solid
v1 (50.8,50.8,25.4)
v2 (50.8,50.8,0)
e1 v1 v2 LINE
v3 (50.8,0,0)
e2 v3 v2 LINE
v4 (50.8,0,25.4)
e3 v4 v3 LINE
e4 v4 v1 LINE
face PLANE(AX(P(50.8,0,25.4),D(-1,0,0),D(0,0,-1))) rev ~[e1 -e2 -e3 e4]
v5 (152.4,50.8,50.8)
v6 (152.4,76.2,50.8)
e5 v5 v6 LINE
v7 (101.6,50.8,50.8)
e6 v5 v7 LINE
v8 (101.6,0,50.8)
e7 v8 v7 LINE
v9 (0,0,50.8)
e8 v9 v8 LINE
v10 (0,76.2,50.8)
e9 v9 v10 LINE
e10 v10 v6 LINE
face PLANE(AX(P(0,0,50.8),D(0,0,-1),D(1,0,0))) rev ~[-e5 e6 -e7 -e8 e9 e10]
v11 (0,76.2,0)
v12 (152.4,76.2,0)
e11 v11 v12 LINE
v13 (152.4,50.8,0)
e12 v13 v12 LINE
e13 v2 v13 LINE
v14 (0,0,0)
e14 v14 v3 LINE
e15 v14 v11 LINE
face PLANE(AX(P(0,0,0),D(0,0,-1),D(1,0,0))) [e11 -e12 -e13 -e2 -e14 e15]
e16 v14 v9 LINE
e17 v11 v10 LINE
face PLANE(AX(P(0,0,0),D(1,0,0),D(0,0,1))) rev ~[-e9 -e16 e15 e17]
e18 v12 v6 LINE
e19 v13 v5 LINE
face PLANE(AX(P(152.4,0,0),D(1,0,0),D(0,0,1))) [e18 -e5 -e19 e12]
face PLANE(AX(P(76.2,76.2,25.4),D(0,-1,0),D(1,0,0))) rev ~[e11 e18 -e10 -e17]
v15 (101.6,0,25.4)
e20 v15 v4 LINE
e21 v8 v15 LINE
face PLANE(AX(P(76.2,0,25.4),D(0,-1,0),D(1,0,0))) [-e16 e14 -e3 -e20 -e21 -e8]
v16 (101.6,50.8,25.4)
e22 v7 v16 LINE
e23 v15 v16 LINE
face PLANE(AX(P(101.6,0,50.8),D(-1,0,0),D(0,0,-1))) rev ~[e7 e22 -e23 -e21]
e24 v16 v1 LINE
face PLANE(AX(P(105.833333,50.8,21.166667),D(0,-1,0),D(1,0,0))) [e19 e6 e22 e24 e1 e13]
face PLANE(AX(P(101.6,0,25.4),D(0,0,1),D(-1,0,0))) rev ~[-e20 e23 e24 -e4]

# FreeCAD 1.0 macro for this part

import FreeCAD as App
import Part
import Sketcher
Q = App.Units.Quantity


def add_polygon(sketch, points):
    """Adds a closed chain of lines whose ends are joined by coincident constraints."""
    first, n = sketch.GeometryCount, len(points)
    for a, b in zip(points, points[1:] + points[:1]):
        sketch.addGeometry(Part.LineSegment(App.Vector(*a, 0), App.Vector(*b, 0)), False)
    for i in range(n):
        sketch.addConstraint(Sketcher.Constraint("Coincident", first + i, 2, first + (i + 1) % n, 1))

doc = App.newDocument("Part")
params = doc.addObject("Spreadsheet::Sheet", "Params")
for row, (alias, value) in enumerate([
    ("sketch1_width", "6 in"),
    ("sketch1_height", "2 in"),
    ("pad1_length", "3 in"),
    ("sketch2_width", "4 in"),
    ("pocket1_length", "2 in"),
], start=1):
    params.set(f"A{row}", alias)
    params.set(f"B{row}", "=" + value)
    params.setAlias(f"B{row}", alias)

body = doc.addObject("PartDesign::Body", "Body")

# Sketch on XZ plane
sketch1 = body.newObject("Sketcher::SketchObject", "Sketch")
sketch1.AttachmentSupport = (doc.getObject("XZ_Plane"), [""])
sketch1.MapMode = "FlatFace"
add_polygon(sketch1, [(0, 51), (0, 0), (152, 0), (152, 51)])  # lines 0-3
sketch1.addConstraint([
    Sketcher.Constraint("Vertical", 0),
    Sketcher.Constraint("Horizontal", 1),
    Sketcher.Constraint("Vertical", 2),
    Sketcher.Constraint("Horizontal", 3),
    Sketcher.Constraint("Coincident", 0, 2, -1, 1),
    Sketcher.Constraint("DistanceX", 1, 1, 1, 2, Q("6 in")),
    Sketcher.Constraint("DistanceY", 0, 2, 0, 1, Q("2 in")),
])
sketch1.setExpression("Constraints[9]", "Params.sketch1_width")
sketch1.setExpression("Constraints[10]", "Params.sketch1_height")
pad1 = body.newObject("PartDesign::Pad", "Pad")
pad1.Profile = sketch1
pad1.setExpression("Length", "Params.pad1_length")
pad1.Reversed = True

# Sketch on XZ plane
sketch2 = body.newObject("Sketcher::SketchObject", "Sketch001")
sketch2.AttachmentSupport = (doc.getObject("XZ_Plane"), [""])
sketch2.MapMode = "FlatFace"
add_polygon(sketch2, [(51, 25), (51, 0), (152, 0), (152, 51), (102, 51), (102, 25)])  # lines 0-5
sketch2.addConstraint([
    Sketcher.Constraint("Vertical", 0),
    Sketcher.Constraint("Horizontal", 1),
    Sketcher.Constraint("Vertical", 2),
    Sketcher.Constraint("Horizontal", 3),
    Sketcher.Constraint("Vertical", 4),
    Sketcher.Constraint("Horizontal", 5),
    Sketcher.Constraint("PointOnObject", 0, 2, -1),
    Sketcher.Constraint("Equal", 3, 5),
    Sketcher.Constraint("Equal", 5, 2),
    Sketcher.Constraint("Equal", 0, 4),
    Sketcher.Constraint("DistanceX", 1, 1, 1, 2, Q("4 in")),
    Sketcher.Constraint("DistanceX", -1, 1, 0, 2, Q("2 in")),
])
sketch2.setExpression("Constraints[16]", "Params.sketch2_width")
pocket1 = body.newObject("PartDesign::Pocket", "Pocket")
pocket1.Profile = sketch2
pocket1.setExpression("Length", "Params.pocket1_length")

doc.recompute()
